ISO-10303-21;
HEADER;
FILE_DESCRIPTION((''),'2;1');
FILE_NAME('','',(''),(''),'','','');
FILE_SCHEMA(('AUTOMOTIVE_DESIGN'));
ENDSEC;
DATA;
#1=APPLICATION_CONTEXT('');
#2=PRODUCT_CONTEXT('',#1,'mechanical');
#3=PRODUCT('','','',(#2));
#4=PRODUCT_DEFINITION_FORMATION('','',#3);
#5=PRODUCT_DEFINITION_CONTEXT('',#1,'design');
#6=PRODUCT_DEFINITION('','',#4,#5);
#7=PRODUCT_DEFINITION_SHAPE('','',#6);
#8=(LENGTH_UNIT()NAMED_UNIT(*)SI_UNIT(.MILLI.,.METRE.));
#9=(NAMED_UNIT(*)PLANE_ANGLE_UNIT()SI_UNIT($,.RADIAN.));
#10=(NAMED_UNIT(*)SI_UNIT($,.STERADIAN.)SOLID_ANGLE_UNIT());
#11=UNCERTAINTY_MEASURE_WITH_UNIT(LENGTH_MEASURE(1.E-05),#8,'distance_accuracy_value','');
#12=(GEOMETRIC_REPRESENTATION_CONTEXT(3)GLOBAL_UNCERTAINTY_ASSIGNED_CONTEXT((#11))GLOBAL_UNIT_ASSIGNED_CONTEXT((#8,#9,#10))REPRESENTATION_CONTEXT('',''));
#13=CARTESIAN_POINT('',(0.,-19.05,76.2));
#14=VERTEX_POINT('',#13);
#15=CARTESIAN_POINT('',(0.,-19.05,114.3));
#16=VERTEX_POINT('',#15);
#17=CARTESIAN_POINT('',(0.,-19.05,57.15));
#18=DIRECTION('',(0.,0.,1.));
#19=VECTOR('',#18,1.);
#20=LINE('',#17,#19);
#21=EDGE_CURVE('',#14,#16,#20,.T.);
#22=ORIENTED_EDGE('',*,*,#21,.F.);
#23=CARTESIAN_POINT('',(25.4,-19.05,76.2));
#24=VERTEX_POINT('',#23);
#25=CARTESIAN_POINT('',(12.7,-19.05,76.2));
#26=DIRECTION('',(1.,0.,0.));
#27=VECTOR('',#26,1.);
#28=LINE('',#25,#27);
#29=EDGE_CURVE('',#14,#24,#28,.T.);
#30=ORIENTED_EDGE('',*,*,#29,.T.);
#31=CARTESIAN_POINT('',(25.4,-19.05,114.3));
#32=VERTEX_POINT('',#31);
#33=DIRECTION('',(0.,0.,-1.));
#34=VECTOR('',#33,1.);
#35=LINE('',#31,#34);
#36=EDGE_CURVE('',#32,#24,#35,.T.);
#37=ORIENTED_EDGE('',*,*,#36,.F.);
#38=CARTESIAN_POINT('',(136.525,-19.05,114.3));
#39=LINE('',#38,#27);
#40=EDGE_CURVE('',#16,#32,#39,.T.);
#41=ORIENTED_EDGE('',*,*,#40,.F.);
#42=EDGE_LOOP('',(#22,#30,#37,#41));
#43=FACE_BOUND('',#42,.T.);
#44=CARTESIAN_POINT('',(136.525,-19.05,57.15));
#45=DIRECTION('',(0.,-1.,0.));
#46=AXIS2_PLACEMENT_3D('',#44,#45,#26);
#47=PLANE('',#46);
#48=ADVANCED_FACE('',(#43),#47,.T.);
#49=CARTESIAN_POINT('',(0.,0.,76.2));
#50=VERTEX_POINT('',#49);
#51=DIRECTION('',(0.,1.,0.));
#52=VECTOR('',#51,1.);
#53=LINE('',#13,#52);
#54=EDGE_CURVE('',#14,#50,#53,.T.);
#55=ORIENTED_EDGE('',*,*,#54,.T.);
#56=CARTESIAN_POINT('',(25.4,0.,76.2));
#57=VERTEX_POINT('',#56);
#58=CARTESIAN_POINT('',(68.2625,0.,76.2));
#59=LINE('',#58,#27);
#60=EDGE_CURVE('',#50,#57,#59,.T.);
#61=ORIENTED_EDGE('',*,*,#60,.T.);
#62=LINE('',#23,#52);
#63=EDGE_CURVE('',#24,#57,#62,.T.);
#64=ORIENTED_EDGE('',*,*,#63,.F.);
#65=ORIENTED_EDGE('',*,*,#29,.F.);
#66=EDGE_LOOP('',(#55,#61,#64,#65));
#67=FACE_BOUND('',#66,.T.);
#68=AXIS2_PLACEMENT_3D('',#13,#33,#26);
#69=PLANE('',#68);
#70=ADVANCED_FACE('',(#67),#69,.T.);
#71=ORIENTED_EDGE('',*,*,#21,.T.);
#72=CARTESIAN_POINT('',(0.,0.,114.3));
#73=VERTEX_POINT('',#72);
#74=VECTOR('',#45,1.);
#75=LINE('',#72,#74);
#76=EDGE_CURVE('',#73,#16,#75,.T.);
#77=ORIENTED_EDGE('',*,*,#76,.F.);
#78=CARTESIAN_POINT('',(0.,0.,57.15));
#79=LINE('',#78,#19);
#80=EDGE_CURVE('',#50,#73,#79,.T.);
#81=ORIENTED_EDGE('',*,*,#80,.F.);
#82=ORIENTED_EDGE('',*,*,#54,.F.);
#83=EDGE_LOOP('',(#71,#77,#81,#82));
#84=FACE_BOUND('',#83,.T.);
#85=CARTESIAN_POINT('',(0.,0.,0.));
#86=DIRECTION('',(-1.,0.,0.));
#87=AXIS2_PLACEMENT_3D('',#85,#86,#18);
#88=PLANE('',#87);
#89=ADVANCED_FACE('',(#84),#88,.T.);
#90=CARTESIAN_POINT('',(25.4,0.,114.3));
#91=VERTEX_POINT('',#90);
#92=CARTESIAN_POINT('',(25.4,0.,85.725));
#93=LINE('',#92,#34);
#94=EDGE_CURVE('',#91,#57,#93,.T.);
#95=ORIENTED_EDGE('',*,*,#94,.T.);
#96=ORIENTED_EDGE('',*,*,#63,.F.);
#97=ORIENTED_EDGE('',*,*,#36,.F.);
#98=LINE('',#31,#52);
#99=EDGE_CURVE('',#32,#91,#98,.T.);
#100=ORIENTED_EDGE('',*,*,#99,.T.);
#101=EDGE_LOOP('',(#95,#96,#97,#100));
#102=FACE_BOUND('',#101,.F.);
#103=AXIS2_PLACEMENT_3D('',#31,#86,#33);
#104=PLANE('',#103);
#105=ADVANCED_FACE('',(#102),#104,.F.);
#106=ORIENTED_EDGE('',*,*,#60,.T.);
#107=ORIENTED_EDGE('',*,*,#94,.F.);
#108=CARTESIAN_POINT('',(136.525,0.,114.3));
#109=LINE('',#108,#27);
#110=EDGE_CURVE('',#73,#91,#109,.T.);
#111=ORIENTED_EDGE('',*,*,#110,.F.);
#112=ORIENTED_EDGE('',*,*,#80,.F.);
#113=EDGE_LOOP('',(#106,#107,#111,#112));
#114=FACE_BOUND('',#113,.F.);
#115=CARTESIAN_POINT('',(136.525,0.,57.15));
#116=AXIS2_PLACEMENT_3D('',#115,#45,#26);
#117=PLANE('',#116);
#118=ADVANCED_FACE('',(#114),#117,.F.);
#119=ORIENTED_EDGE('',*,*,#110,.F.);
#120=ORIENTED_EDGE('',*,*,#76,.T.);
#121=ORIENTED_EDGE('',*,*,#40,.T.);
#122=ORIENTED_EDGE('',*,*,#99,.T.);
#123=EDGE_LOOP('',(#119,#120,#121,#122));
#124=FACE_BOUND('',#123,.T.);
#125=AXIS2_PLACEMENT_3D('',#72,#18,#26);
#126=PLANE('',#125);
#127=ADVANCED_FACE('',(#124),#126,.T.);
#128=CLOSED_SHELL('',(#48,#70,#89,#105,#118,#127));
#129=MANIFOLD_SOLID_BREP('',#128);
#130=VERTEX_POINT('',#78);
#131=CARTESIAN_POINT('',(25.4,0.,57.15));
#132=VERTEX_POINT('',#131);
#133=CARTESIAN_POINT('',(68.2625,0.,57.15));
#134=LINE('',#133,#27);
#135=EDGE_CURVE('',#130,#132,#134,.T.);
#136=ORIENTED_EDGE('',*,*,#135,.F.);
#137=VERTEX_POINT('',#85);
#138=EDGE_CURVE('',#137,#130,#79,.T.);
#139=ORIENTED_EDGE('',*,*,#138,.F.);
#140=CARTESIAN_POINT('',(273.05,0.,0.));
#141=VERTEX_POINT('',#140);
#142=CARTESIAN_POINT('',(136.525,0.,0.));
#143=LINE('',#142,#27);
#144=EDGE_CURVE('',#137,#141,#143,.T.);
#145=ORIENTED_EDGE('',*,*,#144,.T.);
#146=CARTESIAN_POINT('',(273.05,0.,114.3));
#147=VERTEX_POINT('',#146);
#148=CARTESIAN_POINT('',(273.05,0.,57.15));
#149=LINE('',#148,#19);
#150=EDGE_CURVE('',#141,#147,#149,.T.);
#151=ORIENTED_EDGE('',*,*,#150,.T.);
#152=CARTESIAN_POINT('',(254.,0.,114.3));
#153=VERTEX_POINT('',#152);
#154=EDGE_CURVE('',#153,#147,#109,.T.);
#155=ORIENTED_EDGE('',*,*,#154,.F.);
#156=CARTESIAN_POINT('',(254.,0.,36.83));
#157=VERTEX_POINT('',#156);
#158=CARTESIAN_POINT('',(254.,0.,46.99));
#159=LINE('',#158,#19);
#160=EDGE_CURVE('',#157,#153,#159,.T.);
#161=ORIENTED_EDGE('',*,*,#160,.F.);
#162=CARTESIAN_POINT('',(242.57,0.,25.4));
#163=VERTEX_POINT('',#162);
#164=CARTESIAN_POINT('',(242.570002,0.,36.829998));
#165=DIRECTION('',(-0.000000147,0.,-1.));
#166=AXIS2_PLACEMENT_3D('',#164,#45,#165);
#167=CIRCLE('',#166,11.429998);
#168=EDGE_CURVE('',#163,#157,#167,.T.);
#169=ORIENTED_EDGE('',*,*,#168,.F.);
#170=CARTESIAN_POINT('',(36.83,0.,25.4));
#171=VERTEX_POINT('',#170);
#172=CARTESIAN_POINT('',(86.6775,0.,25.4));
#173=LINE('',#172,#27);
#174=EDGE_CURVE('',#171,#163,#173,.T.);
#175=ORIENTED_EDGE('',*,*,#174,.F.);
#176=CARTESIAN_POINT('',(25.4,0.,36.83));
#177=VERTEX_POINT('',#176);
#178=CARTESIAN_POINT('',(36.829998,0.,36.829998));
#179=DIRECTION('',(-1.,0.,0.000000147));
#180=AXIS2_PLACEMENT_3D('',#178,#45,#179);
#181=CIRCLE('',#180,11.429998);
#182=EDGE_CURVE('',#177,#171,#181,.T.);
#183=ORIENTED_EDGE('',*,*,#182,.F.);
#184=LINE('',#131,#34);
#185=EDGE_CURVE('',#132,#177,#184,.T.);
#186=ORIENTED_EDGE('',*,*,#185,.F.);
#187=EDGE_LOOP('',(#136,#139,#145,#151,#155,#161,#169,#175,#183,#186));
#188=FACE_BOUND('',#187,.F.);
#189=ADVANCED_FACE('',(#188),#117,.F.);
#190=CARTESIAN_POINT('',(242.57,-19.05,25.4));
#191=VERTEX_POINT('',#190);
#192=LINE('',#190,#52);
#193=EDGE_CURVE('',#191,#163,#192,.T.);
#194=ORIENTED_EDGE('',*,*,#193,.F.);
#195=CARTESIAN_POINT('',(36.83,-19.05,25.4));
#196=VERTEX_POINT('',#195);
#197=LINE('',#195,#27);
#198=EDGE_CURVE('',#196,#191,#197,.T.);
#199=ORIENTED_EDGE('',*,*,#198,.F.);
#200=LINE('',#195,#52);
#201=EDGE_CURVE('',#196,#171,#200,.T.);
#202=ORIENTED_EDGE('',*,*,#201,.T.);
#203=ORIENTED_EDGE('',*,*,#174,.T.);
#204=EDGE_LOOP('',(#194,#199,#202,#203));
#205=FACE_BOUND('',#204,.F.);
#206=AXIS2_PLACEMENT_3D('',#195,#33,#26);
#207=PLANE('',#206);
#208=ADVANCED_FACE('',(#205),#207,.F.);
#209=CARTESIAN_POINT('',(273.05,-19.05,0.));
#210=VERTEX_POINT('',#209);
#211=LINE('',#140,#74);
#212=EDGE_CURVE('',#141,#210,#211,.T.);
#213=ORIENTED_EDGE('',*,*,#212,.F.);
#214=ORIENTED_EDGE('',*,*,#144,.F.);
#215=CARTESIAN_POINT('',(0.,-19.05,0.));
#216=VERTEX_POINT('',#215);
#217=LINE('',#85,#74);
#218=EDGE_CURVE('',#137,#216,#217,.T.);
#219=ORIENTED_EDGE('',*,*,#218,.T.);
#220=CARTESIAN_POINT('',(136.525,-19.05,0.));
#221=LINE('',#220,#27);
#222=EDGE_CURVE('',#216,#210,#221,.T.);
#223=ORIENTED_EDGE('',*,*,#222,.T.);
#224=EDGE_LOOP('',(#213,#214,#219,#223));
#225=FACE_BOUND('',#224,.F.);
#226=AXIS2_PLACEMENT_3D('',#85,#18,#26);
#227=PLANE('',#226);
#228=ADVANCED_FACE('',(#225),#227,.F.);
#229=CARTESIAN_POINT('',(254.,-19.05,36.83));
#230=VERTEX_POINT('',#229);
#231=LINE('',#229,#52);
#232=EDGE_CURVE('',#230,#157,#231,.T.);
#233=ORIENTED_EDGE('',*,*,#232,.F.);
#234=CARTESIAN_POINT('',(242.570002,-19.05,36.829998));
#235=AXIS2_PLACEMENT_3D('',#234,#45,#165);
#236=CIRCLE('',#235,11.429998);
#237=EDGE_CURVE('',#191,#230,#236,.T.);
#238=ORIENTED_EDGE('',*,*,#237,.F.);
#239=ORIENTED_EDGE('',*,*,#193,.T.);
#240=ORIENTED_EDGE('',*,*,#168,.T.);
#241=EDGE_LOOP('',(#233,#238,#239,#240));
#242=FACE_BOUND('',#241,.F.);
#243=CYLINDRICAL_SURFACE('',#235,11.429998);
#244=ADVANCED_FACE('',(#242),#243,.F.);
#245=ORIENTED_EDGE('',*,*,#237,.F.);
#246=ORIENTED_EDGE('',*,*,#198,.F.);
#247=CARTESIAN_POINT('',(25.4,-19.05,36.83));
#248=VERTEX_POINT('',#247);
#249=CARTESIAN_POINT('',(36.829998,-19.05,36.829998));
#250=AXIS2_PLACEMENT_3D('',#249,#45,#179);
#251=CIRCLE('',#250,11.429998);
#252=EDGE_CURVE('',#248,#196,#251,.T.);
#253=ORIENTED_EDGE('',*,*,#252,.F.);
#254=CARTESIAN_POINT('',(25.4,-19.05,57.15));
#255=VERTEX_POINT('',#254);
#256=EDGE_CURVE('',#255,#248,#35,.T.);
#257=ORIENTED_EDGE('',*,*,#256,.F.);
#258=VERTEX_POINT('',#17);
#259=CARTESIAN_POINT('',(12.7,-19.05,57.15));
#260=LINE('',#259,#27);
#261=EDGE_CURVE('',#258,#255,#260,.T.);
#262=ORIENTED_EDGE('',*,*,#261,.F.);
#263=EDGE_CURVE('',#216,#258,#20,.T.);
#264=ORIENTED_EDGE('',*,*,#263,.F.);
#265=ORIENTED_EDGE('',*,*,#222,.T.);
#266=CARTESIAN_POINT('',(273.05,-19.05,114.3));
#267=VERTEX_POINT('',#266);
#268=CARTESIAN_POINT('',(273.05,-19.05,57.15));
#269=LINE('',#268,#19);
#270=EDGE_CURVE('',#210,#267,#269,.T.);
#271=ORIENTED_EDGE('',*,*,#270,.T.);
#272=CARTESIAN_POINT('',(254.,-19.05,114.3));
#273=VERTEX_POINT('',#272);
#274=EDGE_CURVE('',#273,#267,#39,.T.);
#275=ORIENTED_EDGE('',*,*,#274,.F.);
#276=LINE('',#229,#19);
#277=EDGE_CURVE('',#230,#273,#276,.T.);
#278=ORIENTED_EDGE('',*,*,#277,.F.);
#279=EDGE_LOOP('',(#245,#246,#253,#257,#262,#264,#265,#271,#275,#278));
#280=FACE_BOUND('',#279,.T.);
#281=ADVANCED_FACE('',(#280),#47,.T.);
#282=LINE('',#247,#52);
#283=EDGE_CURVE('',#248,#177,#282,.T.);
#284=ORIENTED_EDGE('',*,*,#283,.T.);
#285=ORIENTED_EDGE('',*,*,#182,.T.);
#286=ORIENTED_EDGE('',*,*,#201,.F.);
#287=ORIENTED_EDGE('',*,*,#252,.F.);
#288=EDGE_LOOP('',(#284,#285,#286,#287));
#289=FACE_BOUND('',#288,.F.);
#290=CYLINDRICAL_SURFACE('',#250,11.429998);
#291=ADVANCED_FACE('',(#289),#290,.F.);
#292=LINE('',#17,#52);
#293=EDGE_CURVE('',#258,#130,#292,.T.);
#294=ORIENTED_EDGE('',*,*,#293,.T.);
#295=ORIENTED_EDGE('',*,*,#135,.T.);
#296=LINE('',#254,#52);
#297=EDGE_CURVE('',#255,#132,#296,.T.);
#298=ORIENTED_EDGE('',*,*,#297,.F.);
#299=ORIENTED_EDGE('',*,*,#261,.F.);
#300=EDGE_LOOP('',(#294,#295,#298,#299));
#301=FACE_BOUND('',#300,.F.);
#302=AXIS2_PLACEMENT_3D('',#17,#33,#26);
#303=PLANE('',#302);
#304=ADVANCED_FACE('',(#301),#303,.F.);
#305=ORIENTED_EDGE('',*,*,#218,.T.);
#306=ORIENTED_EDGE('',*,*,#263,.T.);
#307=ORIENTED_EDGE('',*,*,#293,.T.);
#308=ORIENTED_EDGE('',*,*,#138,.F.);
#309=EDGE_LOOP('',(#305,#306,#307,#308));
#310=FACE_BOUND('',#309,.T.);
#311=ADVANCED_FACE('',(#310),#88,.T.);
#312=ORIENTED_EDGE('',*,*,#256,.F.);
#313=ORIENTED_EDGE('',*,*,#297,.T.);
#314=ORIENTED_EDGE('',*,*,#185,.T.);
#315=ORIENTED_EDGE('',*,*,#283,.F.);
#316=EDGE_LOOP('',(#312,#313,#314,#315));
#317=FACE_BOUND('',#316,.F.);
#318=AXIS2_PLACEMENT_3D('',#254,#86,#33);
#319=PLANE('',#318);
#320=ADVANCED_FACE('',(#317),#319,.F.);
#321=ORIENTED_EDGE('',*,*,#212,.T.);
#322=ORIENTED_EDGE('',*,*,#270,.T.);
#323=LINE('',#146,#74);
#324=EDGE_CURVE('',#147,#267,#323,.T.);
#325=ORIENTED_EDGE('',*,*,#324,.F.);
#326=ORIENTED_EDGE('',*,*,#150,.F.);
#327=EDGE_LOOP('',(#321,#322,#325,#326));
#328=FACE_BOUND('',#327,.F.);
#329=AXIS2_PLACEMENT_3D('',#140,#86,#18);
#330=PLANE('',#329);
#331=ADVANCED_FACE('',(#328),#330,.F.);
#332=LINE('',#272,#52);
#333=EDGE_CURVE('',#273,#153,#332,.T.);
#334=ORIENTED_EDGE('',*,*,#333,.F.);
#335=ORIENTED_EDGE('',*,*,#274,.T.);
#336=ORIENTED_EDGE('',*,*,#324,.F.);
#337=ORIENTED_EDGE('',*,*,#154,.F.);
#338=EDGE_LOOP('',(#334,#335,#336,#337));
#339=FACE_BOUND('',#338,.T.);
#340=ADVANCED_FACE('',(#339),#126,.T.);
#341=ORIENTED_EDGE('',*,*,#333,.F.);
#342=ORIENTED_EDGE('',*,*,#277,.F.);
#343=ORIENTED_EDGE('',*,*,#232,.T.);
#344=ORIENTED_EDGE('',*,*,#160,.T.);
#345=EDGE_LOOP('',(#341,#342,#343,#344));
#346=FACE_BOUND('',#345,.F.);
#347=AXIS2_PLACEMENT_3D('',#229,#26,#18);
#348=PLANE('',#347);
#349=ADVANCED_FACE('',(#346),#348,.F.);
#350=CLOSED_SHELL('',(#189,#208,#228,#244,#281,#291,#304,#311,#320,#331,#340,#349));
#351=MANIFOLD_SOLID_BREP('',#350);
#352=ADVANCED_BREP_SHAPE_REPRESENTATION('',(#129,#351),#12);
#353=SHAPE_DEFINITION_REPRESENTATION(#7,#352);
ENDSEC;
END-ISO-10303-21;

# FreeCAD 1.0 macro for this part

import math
import FreeCAD as App
import Part
import Sketcher

V = App.Vector
Q = App.Units.Quantity

doc = App.newDocument("Part")
body = doc.addObject("PartDesign::Body", "Body")
body.AllowCompound = True

# Sketch on XZ plane
sketch1 = body.newObject("Sketcher::SketchObject", "Sketch")
sketch1.AttachmentSupport = (doc.getObject("XZ_Plane"), [""])
sketch1.MapMode = "FlatFace"
sketch1.addGeometry([
    Part.LineSegment(V(0, 114, 0), V(0, 0, 0)),
    Part.LineSegment(V(0, 0, 0), V(273, 0, 0)),
    Part.LineSegment(V(273, 0, 0), V(273, 114, 0)),
    Part.LineSegment(V(273, 114, 0), V(0, 114, 0)),
], False)
sketch1.addConstraint([
    Sketcher.Constraint("Coincident", 0, 2, 1, 1),
    Sketcher.Constraint("Coincident", 1, 2, 2, 1),
    Sketcher.Constraint("Coincident", 2, 2, 3, 1),
    Sketcher.Constraint("Coincident", 3, 2, 0, 1),
    Sketcher.Constraint("Vertical", 0),
    Sketcher.Constraint("Horizontal", 1),
    Sketcher.Constraint("Vertical", 2),
    Sketcher.Constraint("Horizontal", 3),
    Sketcher.Constraint("Coincident", 0, 2, -1, 1),
    Sketcher.Constraint("DistanceY", 0, 2, 0, 1, Q("4.5 in")),
    Sketcher.Constraint("DistanceX", 1, 1, 1, 2, Q("10.75 in")),
])
pad1 = body.newObject("PartDesign::Pad", "Pad")
pad1.Profile = sketch1
pad1.Length = Q("0.75 in")

# Sketch on XZ plane
sketch2 = body.newObject("Sketcher::SketchObject", "Sketch001")
sketch2.AttachmentSupport = (doc.getObject("XZ_Plane"), [""])
sketch2.MapMode = "FlatFace"
sketch2.AttachmentOffset = App.Placement(V(0, 0, 0.75 * 25.4), App.Rotation())
sketch2.addGeometry([
    Part.LineSegment(V(0, 76, 0), V(0, 57, 0)),  # 0
    Part.LineSegment(V(0, 57, 0), V(25, 57, 0)),  # 1
    Part.LineSegment(V(25, 57, 0), V(25, 37, 0)),  # 2
    Part.ArcOfCircle(Part.Circle(V(37, 37, 0), V(0, 0, 1), 11), math.radians(180), math.radians(270)),  # 3
    Part.LineSegment(V(37, 25, 0), V(243, 25, 0)),  # 4
    Part.ArcOfCircle(Part.Circle(V(243, 37, 0), V(0, 0, 1), 11), math.radians(-90), math.radians(0)),  # 5
    Part.LineSegment(V(254, 37, 0), V(254, 114, 0)),  # 6
    Part.LineSegment(V(254, 114, 0), V(25, 114, 0)),  # 7
    Part.LineSegment(V(25, 114, 0), V(25, 76, 0)),  # 8
    Part.LineSegment(V(25, 76, 0), V(0, 76, 0)),  # 9
], False)
sketch2.addConstraint([
    Sketcher.Constraint("Coincident", 0, 2, 1, 1),
    Sketcher.Constraint("Coincident", 1, 2, 2, 1),
    Sketcher.Constraint("Tangent", 2, 2, 3, 1),
    Sketcher.Constraint("Tangent", 3, 2, 4, 1),
    Sketcher.Constraint("Tangent", 4, 2, 5, 1),
    Sketcher.Constraint("Tangent", 5, 2, 6, 1),
    Sketcher.Constraint("Coincident", 6, 2, 7, 1),
    Sketcher.Constraint("Coincident", 7, 2, 8, 1),
    Sketcher.Constraint("Coincident", 8, 2, 9, 1),
    Sketcher.Constraint("Coincident", 9, 2, 0, 1),
    Sketcher.Constraint("Vertical", 0),
    Sketcher.Constraint("Horizontal", 1),
    Sketcher.Constraint("Vertical", 2),
    Sketcher.Constraint("Horizontal", 4),
    Sketcher.Constraint("Vertical", 6),
    Sketcher.Constraint("Horizontal", 7),
    Sketcher.Constraint("Vertical", 8),
    Sketcher.Constraint("Horizontal", 9),
    Sketcher.Constraint("Equal", 3, 5),
    Sketcher.Constraint("PointOnObject", 0, 2, -2),
    Sketcher.Constraint("Vertical", 2, 2, 7, 2),
    Sketcher.Constraint("DistanceX", 1, 1, 1, 2, Q("1 in")),
    Sketcher.Constraint("DistanceX", 7, 2, 7, 1, Q("9 in")),
    Sketcher.Constraint("Radius", 3, Q("0.4499999 in")),
    Sketcher.Constraint("DistanceY", 2, 2, 2, 1, Q("0.8 in")),
    Sketcher.Constraint("DistanceY", 8, 2, 8, 1, Q("1.5 in")),
    Sketcher.Constraint("DistanceY", -1, 1, 3, 2, Q("1 in")),
    Sketcher.Constraint("DistanceY", -1, 1, 8, 2, Q("3 in")),
])
pocket1 = body.newObject("PartDesign::Pocket", "Pocket")
pocket1.Profile = sketch2
pocket1.Length = Q("1 in")

doc.recompute()
